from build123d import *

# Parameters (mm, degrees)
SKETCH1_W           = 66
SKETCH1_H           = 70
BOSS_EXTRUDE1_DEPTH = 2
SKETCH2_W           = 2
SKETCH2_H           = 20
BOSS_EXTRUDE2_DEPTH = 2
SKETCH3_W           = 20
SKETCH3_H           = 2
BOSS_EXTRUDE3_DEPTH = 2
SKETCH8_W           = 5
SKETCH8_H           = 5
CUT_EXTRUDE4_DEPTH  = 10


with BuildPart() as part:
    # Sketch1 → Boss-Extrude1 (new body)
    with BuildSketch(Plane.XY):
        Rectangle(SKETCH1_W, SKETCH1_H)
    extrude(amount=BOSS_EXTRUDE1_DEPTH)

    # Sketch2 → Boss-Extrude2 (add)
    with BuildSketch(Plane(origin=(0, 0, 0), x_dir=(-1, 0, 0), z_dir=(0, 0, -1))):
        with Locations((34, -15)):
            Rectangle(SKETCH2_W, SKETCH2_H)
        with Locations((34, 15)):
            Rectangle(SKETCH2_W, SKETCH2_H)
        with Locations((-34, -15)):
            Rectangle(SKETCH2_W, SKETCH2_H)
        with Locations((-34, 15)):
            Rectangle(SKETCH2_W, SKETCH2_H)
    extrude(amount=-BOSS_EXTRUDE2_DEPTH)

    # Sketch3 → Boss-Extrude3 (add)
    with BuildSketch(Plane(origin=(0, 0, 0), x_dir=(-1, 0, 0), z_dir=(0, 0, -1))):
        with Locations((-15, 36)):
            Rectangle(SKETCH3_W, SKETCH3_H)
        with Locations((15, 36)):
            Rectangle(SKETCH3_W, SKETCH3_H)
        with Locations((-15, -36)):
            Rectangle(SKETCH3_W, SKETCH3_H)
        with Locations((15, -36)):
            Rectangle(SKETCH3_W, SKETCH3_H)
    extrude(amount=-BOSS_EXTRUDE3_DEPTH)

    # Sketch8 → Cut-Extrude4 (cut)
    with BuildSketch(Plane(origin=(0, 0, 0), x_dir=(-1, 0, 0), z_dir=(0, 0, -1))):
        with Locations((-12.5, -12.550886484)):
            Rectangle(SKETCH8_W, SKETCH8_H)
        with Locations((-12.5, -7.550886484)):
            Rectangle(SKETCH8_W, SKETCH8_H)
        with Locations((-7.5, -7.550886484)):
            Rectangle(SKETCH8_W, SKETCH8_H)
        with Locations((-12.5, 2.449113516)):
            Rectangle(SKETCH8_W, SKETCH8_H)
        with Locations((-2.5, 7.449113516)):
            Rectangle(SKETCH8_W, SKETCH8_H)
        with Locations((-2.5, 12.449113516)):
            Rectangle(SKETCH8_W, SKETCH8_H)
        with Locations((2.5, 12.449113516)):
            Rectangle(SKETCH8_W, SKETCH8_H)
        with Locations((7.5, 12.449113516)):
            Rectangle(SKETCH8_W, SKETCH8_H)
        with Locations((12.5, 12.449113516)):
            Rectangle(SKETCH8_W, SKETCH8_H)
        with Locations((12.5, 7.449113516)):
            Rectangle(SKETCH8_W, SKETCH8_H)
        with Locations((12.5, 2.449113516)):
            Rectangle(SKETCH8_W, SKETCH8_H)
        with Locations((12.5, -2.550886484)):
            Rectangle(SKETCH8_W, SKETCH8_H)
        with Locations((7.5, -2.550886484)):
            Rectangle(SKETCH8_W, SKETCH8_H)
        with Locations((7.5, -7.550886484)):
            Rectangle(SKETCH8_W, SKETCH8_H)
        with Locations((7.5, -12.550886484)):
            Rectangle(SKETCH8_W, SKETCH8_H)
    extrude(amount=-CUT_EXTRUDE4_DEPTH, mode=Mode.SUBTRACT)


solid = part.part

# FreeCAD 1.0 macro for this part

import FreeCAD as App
import Part
import Sketcher

V = App.Vector


def add_polygon(sketch, points):
    """Adds a closed chain of lines whose ends are joined by coincident constraints."""
    first, n = sketch.GeometryCount, len(points)
    for a, b in zip(points, points[1:] + points[:1]):
        sketch.addGeometry(Part.LineSegment(App.Vector(*a, 0), App.Vector(*b, 0)), False)
    for i in range(n):
        sketch.addConstraint(Sketcher.Constraint("Coincident", first + i, 2, first + (i + 1) % n, 1))

doc = App.newDocument("Part")
body = doc.addObject("PartDesign::Body", "Body")

sketch1 = body.newObject("Sketcher::SketchObject", "Sketch")
sketch1.AttachmentSupport = (doc.getObject("XY_Plane"), [""])
sketch1.MapMode = "FlatFace"
add_polygon(sketch1, [(-33, 35), (-33, -35), (33, -35), (33, 35)])
sketch1.addConstraint([
    Sketcher.Constraint("Vertical", 0),
    Sketcher.Constraint("Horizontal", 1),
    Sketcher.Constraint("Vertical", 2),
    Sketcher.Constraint("Horizontal", 3),
    Sketcher.Constraint("Symmetric", 0, 2, 2, 2, -1, 1),
    Sketcher.Constraint("DistanceX", 1, 1, 1, 2, 66.0),
    Sketcher.Constraint("DistanceY", 0, 2, 0, 1, 70.0),
])
pad1 = body.newObject("PartDesign::Pad", "Pad")
pad1.Profile = sketch1
pad1.Length = 2

sketch2 = body.newObject("Sketcher::SketchObject", "Sketch001")
sketch2.AttachmentSupport = (doc.getObject("XY_Plane"), [""])
sketch2.MapMode = "FlatFace"
add_polygon(sketch2, [(-33, -5), (-33, -25), (-35, -25), (-35, -5)])
add_polygon(sketch2, [(-33, 25), (-33, 5), (-35, 5), (-35, 25)])
add_polygon(sketch2, [(35, -5), (35, -25), (33, -25), (33, -5)])
add_polygon(sketch2, [(35, 25), (35, 5), (33, 5), (33, 25)])
sketch2.addConstraint([
    Sketcher.Constraint("Vertical", 0),
    Sketcher.Constraint("Horizontal", 1),
    Sketcher.Constraint("Vertical", 2),
    Sketcher.Constraint("Horizontal", 3),
    Sketcher.Constraint("Vertical", 4),
    Sketcher.Constraint("Horizontal", 5),
    Sketcher.Constraint("Vertical", 6),
    Sketcher.Constraint("Horizontal", 7),
    Sketcher.Constraint("Vertical", 8),
    Sketcher.Constraint("Horizontal", 9),
    Sketcher.Constraint("Vertical", 10),
    Sketcher.Constraint("Horizontal", 11),
    Sketcher.Constraint("Vertical", 12),
    Sketcher.Constraint("Horizontal", 13),
    Sketcher.Constraint("Vertical", 14),
    Sketcher.Constraint("Horizontal", 15),
    Sketcher.Constraint("Symmetric", 6, 2, 8, 2, -1, 1),
    Sketcher.Constraint("Symmetric", 4, 2, 10, 2, -1, 1),
    Sketcher.Constraint("Symmetric", 2, 2, 12, 2, -1, 1),
    Sketcher.Constraint("Symmetric", 0, 2, 14, 2, -1, 1),
    Sketcher.Constraint("Symmetric", 1, 2, 8, 2, -2),
    Sketcher.Constraint("Symmetric", 3, 2, 10, 2, -2),
    Sketcher.Constraint("DistanceX", 1, 2, 1, 1, 2.0),
    Sketcher.Constraint("DistanceY", 0, 2, 0, 1, 20.0),
    Sketcher.Constraint("DistanceX", 0, 2, -1, 1, 33.0),
    Sketcher.Constraint("DistanceY", 0, 2, -1, 1, 25.0),
])
pad2 = body.newObject("PartDesign::Pad", "Pad001")
pad2.Profile = sketch2
pad2.Length = 2

sketch3 = body.newObject("Sketcher::SketchObject", "Sketch002")
sketch3.AttachmentSupport = (doc.getObject("XY_Plane"), [""])
sketch3.MapMode = "FlatFace"
add_polygon(sketch3, [(25, 37), (25, 35), (5, 35), (5, 37)])
add_polygon(sketch3, [(-5, 37), (-5, 35), (-25, 35), (-25, 37)])
add_polygon(sketch3, [(25, -35), (25, -37), (5, -37), (5, -35)])
add_polygon(sketch3, [(-5, -35), (-5, -37), (-25, -37), (-25, -35)])
sketch3.addConstraint([
    Sketcher.Constraint("Vertical", 0),
    Sketcher.Constraint("Horizontal", 1),
    Sketcher.Constraint("Vertical", 2),
    Sketcher.Constraint("Horizontal", 3),
    Sketcher.Constraint("Vertical", 4),
    Sketcher.Constraint("Horizontal", 5),
    Sketcher.Constraint("Vertical", 6),
    Sketcher.Constraint("Horizontal", 7),
    Sketcher.Constraint("Vertical", 8),
    Sketcher.Constraint("Horizontal", 9),
    Sketcher.Constraint("Vertical", 10),
    Sketcher.Constraint("Horizontal", 11),
    Sketcher.Constraint("Vertical", 12),
    Sketcher.Constraint("Horizontal", 13),
    Sketcher.Constraint("Vertical", 14),
    Sketcher.Constraint("Horizontal", 15),
    Sketcher.Constraint("Symmetric", 6, 2, 8, 2, -1, 1),
    Sketcher.Constraint("Symmetric", 4, 2, 10, 2, -1, 1),
    Sketcher.Constraint("Symmetric", 2, 2, 12, 2, -1, 1),
    Sketcher.Constraint("Symmetric", 0, 2, 14, 2, -1, 1),
    Sketcher.Constraint("Symmetric", 1, 2, 4, 2, -2),
    Sketcher.Constraint("Symmetric", 3, 2, 6, 2, -2),
    Sketcher.Constraint("DistanceX", 1, 2, 1, 1, 20.0),
    Sketcher.Constraint("DistanceY", 0, 2, 0, 1, 2.0),
    Sketcher.Constraint("DistanceX", -1, 1, 0, 2, 25.0),
    Sketcher.Constraint("DistanceY", -1, 1, 0, 2, 35.0),
])
pad3 = body.newObject("PartDesign::Pad", "Pad002")
pad3.Profile = sketch3
pad3.Length = 2

sketch4 = body.newObject("Sketcher::SketchObject", "Sketch003")
sketch4.AttachmentSupport = (doc.getObject("XY_Plane"), [""])
sketch4.MapMode = "FlatFace"
add_polygon(sketch4, [(15, -15.1), (10, -15.1), (10, -10.1), (5, -10.1), (5, -5.1), (15, -5.1)])
add_polygon(sketch4, [(15, 4.9), (15, -0.1), (10, -0.1), (10, 4.9)])
add_polygon(sketch4, [(5, 4.9), (0, 4.9), (0, 9.9), (-10, 9.9), (-10, -0.1), (-5, -0.1), (-5, -15.1), (-10, -15.1), (-10, -5.1), (-15, -5.1), (-15, 14.9), (5, 14.9)])
sketch4.addConstraint([
    Sketcher.Constraint("Horizontal", 0),
    Sketcher.Constraint("Vertical", 1),
    Sketcher.Constraint("Horizontal", 2),
    Sketcher.Constraint("Vertical", 3),
    Sketcher.Constraint("Horizontal", 4),
    Sketcher.Constraint("Vertical", 5),
    Sketcher.Constraint("Vertical", 6),
    Sketcher.Constraint("Horizontal", 7),
    Sketcher.Constraint("Vertical", 8),
    Sketcher.Constraint("Horizontal", 9),
    Sketcher.Constraint("Horizontal", 10),
    Sketcher.Constraint("Vertical", 11),
    Sketcher.Constraint("Horizontal", 12),
    Sketcher.Constraint("Vertical", 13),
    Sketcher.Constraint("Horizontal", 14),
    Sketcher.Constraint("Vertical", 15),
    Sketcher.Constraint("Horizontal", 16),
    Sketcher.Constraint("Vertical", 17),
    Sketcher.Constraint("Horizontal", 18),
    Sketcher.Constraint("Vertical", 19),
    Sketcher.Constraint("Horizontal", 20),
    Sketcher.Constraint("Vertical", 21),
    Sketcher.Constraint("Symmetric", 7, 2, 13, 2, -2),
    Sketcher.Constraint("Symmetric", 0, 2, 16, 2, -2),
    Sketcher.Constraint("Symmetric", 4, 2, 18, 2, -2),
    Sketcher.Constraint("PointOnObject", 10, 2, -2),
    Sketcher.Constraint("Horizontal", 9, 2, 10, 2),
    Sketcher.Constraint("Vertical", 5, 2, 6, 2),
    Sketcher.Constraint("Vertical", 1, 2, 7, 2),
    Sketcher.Constraint("Vertical", 3, 2, 20, 2),
    Sketcher.Constraint("Equal", 0, 2),
    Sketcher.Constraint("Equal", 9, 10),
    Sketcher.Constraint("Equal", 10, 14),
    Sketcher.Constraint("Equal", 18, 1),
    Sketcher.Constraint("Equal", 1, 3),
    Sketcher.Constraint("Equal", 3, 6),
    Sketcher.Constraint("Equal", 8, 11),
    Sketcher.Constraint("Equal", 20, 19),
    Sketcher.Constraint("Equal", 17, 21),
    Sketcher.Constraint("DistanceX", 0, 2, 0, 1, 5.0),
    Sketcher.Constraint("DistanceY", 0, 2, -1, 1, 15.050886),
])
pocket1 = body.newObject("PartDesign::Pocket", "Pocket")
pocket1.Profile = sketch4
pocket1.Length = 10
pocket1.Reversed = True

doc.recompute()
